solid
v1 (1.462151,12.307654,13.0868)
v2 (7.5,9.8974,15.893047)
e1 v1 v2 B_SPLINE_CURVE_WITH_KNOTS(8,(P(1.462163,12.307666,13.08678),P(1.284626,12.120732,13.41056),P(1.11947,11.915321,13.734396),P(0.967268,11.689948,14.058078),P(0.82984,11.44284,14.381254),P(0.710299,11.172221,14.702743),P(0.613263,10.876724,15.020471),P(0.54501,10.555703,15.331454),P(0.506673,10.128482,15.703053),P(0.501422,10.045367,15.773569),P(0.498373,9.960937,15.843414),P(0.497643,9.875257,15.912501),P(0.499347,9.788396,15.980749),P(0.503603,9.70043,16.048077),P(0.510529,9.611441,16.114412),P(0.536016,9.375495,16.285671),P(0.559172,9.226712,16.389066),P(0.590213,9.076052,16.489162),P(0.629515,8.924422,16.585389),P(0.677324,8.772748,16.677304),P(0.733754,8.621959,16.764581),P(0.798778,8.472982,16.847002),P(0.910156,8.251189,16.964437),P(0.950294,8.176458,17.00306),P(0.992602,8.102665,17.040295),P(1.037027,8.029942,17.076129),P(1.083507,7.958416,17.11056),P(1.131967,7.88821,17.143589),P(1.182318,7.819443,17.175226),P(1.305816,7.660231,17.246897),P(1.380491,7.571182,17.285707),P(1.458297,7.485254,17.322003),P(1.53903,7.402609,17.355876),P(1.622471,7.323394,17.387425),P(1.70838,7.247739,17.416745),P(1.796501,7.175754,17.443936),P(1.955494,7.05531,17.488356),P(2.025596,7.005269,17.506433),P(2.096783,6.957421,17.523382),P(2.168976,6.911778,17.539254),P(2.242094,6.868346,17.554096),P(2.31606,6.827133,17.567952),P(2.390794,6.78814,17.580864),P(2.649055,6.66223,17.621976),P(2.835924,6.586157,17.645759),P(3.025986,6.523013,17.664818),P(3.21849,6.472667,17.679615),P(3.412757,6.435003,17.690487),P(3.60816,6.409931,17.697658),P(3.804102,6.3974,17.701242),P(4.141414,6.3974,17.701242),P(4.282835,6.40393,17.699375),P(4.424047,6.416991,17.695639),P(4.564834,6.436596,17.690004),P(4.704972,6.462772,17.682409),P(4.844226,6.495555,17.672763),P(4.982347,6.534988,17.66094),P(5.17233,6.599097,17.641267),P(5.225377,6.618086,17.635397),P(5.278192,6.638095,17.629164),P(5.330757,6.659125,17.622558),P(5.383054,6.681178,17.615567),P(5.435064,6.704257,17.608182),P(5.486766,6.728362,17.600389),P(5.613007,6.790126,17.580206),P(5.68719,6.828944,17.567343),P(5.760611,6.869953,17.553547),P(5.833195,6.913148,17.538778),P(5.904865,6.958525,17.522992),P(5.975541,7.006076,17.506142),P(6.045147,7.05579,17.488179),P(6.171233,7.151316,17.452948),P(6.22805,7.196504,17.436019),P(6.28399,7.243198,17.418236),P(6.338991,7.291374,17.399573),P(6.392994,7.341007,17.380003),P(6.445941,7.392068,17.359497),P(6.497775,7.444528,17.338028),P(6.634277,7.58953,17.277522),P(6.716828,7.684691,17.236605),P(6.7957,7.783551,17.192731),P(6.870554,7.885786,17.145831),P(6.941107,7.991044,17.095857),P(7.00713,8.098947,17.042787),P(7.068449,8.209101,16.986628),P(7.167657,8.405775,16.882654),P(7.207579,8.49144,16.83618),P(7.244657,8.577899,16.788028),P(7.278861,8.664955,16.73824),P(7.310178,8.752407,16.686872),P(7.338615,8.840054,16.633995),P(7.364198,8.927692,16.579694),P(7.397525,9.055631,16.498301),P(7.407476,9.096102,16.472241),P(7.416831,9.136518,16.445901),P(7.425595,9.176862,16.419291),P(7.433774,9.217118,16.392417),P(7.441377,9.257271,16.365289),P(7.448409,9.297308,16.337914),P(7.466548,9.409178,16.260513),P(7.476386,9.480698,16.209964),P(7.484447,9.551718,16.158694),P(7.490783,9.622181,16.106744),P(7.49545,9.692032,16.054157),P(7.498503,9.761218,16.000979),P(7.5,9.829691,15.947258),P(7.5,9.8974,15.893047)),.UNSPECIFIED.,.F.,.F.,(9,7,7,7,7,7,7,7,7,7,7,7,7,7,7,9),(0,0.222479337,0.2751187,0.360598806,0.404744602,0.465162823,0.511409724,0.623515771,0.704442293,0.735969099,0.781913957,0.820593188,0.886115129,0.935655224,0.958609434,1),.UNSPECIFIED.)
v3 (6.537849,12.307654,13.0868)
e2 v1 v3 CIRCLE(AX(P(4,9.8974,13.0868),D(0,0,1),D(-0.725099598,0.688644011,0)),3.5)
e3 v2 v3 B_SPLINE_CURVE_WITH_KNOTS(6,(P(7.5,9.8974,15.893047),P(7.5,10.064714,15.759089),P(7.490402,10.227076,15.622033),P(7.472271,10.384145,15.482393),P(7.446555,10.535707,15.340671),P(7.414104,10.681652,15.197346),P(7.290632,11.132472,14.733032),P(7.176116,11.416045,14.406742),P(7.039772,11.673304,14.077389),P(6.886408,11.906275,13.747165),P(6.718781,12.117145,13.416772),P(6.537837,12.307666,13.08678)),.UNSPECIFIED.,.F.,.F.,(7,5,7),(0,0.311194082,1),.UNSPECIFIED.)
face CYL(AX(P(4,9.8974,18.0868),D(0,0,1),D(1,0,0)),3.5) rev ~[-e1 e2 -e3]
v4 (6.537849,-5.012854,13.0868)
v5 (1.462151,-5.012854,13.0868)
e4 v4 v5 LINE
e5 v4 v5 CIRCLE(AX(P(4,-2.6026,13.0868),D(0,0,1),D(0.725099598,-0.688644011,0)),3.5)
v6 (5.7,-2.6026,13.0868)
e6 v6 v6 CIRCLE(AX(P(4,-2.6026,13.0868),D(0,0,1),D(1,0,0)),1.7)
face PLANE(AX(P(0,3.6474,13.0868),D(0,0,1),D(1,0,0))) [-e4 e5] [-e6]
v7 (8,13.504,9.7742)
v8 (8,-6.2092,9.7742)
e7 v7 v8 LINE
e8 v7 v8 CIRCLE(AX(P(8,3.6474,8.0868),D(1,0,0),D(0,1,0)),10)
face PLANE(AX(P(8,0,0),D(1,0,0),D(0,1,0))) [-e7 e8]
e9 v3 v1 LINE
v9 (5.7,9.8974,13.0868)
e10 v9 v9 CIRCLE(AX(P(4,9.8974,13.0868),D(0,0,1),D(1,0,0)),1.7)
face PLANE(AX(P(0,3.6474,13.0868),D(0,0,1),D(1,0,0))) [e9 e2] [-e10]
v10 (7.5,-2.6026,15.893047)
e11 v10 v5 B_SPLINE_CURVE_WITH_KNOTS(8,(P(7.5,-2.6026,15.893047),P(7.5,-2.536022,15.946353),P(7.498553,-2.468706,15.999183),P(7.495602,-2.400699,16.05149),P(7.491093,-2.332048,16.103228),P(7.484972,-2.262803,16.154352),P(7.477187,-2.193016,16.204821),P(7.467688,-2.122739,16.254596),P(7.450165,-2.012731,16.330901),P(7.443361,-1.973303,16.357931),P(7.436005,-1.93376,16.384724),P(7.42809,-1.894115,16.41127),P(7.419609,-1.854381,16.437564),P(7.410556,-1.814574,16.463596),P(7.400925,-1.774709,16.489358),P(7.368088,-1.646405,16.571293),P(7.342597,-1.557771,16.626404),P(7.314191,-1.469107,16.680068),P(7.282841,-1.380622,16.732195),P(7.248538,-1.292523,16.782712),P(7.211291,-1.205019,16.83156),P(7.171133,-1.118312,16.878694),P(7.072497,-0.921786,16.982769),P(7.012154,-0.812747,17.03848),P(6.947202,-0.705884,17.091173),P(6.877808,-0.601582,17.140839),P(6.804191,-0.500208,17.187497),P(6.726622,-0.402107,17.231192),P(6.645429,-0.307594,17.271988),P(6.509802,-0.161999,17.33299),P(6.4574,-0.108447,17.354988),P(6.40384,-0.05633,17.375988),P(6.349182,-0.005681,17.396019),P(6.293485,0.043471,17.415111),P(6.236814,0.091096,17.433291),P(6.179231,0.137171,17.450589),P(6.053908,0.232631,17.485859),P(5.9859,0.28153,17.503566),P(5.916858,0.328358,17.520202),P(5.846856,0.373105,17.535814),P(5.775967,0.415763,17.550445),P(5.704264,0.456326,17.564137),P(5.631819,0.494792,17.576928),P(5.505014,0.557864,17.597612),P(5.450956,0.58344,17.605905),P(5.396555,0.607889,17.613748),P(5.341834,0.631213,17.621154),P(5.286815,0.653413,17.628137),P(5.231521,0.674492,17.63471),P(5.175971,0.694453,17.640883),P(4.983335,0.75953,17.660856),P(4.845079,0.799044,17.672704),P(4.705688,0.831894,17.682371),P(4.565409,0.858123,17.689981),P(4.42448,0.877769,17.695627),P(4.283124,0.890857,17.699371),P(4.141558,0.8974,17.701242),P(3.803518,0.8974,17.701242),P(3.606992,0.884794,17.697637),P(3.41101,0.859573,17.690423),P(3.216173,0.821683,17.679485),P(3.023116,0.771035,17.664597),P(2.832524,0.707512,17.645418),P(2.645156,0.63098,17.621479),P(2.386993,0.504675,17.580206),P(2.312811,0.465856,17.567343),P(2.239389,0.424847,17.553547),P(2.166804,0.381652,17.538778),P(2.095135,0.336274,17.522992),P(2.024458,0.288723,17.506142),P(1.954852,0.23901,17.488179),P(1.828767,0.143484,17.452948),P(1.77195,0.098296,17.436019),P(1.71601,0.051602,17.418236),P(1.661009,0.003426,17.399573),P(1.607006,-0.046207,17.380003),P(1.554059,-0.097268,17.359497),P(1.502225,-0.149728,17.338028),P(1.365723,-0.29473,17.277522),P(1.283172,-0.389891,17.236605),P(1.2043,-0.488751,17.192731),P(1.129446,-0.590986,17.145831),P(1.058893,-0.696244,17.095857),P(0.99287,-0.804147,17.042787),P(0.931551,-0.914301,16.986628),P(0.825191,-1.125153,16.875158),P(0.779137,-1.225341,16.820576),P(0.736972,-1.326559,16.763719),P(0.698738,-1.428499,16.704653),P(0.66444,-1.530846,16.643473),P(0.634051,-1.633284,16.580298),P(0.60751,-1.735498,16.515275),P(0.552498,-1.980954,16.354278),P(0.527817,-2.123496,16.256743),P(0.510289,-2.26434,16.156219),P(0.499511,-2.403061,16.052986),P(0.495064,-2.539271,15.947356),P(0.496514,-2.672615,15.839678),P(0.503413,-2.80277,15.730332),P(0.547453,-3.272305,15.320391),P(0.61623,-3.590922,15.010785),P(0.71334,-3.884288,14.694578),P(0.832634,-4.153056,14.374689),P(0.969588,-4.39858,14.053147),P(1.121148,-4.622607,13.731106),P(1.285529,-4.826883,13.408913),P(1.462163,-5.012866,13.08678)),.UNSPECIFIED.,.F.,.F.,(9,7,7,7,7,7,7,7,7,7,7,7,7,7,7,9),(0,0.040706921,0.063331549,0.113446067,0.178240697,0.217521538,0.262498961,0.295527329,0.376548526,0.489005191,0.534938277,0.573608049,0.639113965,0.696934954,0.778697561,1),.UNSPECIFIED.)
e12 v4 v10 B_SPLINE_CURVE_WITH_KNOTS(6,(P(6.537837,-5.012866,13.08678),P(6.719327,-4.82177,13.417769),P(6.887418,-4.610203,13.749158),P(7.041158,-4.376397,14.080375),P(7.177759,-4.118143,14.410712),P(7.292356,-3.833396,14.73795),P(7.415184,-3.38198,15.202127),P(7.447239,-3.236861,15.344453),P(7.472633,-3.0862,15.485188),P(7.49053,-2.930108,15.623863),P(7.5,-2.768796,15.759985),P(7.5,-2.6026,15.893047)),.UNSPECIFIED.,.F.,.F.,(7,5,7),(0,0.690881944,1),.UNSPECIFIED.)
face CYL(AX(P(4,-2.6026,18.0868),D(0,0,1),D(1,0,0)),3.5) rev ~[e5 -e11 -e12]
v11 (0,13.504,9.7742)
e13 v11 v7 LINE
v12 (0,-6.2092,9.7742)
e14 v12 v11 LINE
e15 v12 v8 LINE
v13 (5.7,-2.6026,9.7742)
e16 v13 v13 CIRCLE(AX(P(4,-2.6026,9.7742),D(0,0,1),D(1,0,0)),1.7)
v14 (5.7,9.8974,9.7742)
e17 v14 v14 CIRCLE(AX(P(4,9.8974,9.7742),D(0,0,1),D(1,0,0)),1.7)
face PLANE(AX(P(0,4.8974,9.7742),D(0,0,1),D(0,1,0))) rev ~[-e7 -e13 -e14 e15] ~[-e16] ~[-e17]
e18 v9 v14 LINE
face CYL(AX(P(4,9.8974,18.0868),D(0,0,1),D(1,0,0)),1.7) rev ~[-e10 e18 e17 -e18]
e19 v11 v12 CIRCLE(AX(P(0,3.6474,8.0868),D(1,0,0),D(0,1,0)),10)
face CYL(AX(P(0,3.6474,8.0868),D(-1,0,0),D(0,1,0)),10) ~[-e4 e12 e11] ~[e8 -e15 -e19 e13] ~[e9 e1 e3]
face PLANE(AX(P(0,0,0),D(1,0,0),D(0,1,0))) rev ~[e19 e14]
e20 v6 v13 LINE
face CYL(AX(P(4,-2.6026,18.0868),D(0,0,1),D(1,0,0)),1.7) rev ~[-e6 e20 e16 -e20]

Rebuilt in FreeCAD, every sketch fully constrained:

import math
import FreeCAD as App
import Part
import Sketcher

V = App.Vector
Q = App.Units.Quantity

doc = App.newDocument("Part")
body = doc.addObject("PartDesign::Body", "Body")

# Sketch on YZ plane
sketch1 = body.newObject("Sketcher::SketchObject", "Sketch")
sketch1.AttachmentSupport = (doc.getObject("YZ_Plane"), [""])
sketch1.MapMode = "FlatFace"
sketch1.addGeometry([
    Part.ArcOfCircle(Part.Circle(V(4, 8, 0), V(0, 0, 1), 10), math.radians(10), math.radians(170)),
    Part.LineSegment(V(14, 10, 0), V(-6, 10, 0)),
], False)
sketch1.addConstraint([
    Sketcher.Constraint("Coincident", 0, 1, 1, 1),
    Sketcher.Constraint("Coincident", 1, 2, 0, 2),
    Sketcher.Constraint("Horizontal", 1),
    Sketcher.Constraint("Radius", 0, Q("10 mm")),
    Sketcher.Constraint("DistanceX", 1, 2, 1, 1, Q("19.7132 mm")),
    Sketcher.Constraint("DistanceX", -1, 1, 0, 1, Q("13.504 mm")),
    Sketcher.Constraint("DistanceY", -1, 1, 0, 3, Q("8.0868 mm")),
])
pad1 = body.newObject("PartDesign::Pad", "Pad")
pad1.Profile = sketch1
pad1.Length = 8

# Sketch on XY plane
sketch2 = body.newObject("Sketcher::SketchObject", "Sketch001")
sketch2.AttachmentSupport = (doc.getObject("XY_Plane"), [""])
sketch2.MapMode = "FlatFace"
sketch2.AttachmentOffset = App.Placement(V(0, 0, 18.0868), App.Rotation())
sketch2.addGeometry([
    Part.Circle(V(4, -2.6, 0), V(0, 0, 1), 1.7),
    Part.Circle(V(4, 9.9, 0), V(0, 0, 1), 1.7),
], False)
sketch2.addConstraint([
    Sketcher.Constraint("Equal", 0, 1),
    Sketcher.Constraint("Vertical", 0, 3, 1, 3),
    Sketcher.Constraint("Diameter", 0, Q("3.4 mm")),
    Sketcher.Constraint("DistanceX", -1, 1, 0, 3, Q("4 mm")),
    Sketcher.Constraint("DistanceY", 0, 3, 1, 3, Q("12.5 mm")),
    Sketcher.Constraint("DistanceY", 0, 3, -1, 1, Q("2.6026 mm")),
])
pocket1 = body.newObject("PartDesign::Pocket", "Pocket")
pocket1.Profile = sketch2
pocket1.Length = 15

# Sketch on XY plane
sketch3 = body.newObject("Sketcher::SketchObject", "Sketch002")
sketch3.AttachmentSupport = (doc.getObject("XY_Plane"), [""])
sketch3.MapMode = "FlatFace"
sketch3.AttachmentOffset = App.Placement(V(0, 0, 18.0868), App.Rotation())
sketch3.addGeometry([
    Part.Circle(V(4, -2.6, 0), V(0, 0, 1), 3.5),
    Part.Circle(V(4, 9.9, 0), V(0, 0, 1), 3.5),
    Part.Circle(V(4, 9.9, 0), V(0, 0, 1), 1.7),
], False)
sketch3.addConstraint([
    Sketcher.Constraint("Coincident", 2, 3, 1, 3),
    Sketcher.Constraint("Equal", 0, 1),
    Sketcher.Constraint("Vertical", 0, 3, 1, 3),
    Sketcher.Constraint("Diameter", 0, Q("7 mm")),
    Sketcher.Constraint("Diameter", 2, Q("3.4 mm")),
    Sketcher.Constraint("DistanceX", -1, 1, 0, 3, Q("4 mm")),
    Sketcher.Constraint("DistanceY", 0, 3, 1, 3, Q("12.5 mm")),
    Sketcher.Constraint("DistanceY", 0, 3, -1, 1, Q("2.6026 mm")),
])
pocket2 = body.newObject("PartDesign::Pocket", "Pocket001")
pocket2.Profile = sketch3
pocket2.Length = 5

doc.recompute()
